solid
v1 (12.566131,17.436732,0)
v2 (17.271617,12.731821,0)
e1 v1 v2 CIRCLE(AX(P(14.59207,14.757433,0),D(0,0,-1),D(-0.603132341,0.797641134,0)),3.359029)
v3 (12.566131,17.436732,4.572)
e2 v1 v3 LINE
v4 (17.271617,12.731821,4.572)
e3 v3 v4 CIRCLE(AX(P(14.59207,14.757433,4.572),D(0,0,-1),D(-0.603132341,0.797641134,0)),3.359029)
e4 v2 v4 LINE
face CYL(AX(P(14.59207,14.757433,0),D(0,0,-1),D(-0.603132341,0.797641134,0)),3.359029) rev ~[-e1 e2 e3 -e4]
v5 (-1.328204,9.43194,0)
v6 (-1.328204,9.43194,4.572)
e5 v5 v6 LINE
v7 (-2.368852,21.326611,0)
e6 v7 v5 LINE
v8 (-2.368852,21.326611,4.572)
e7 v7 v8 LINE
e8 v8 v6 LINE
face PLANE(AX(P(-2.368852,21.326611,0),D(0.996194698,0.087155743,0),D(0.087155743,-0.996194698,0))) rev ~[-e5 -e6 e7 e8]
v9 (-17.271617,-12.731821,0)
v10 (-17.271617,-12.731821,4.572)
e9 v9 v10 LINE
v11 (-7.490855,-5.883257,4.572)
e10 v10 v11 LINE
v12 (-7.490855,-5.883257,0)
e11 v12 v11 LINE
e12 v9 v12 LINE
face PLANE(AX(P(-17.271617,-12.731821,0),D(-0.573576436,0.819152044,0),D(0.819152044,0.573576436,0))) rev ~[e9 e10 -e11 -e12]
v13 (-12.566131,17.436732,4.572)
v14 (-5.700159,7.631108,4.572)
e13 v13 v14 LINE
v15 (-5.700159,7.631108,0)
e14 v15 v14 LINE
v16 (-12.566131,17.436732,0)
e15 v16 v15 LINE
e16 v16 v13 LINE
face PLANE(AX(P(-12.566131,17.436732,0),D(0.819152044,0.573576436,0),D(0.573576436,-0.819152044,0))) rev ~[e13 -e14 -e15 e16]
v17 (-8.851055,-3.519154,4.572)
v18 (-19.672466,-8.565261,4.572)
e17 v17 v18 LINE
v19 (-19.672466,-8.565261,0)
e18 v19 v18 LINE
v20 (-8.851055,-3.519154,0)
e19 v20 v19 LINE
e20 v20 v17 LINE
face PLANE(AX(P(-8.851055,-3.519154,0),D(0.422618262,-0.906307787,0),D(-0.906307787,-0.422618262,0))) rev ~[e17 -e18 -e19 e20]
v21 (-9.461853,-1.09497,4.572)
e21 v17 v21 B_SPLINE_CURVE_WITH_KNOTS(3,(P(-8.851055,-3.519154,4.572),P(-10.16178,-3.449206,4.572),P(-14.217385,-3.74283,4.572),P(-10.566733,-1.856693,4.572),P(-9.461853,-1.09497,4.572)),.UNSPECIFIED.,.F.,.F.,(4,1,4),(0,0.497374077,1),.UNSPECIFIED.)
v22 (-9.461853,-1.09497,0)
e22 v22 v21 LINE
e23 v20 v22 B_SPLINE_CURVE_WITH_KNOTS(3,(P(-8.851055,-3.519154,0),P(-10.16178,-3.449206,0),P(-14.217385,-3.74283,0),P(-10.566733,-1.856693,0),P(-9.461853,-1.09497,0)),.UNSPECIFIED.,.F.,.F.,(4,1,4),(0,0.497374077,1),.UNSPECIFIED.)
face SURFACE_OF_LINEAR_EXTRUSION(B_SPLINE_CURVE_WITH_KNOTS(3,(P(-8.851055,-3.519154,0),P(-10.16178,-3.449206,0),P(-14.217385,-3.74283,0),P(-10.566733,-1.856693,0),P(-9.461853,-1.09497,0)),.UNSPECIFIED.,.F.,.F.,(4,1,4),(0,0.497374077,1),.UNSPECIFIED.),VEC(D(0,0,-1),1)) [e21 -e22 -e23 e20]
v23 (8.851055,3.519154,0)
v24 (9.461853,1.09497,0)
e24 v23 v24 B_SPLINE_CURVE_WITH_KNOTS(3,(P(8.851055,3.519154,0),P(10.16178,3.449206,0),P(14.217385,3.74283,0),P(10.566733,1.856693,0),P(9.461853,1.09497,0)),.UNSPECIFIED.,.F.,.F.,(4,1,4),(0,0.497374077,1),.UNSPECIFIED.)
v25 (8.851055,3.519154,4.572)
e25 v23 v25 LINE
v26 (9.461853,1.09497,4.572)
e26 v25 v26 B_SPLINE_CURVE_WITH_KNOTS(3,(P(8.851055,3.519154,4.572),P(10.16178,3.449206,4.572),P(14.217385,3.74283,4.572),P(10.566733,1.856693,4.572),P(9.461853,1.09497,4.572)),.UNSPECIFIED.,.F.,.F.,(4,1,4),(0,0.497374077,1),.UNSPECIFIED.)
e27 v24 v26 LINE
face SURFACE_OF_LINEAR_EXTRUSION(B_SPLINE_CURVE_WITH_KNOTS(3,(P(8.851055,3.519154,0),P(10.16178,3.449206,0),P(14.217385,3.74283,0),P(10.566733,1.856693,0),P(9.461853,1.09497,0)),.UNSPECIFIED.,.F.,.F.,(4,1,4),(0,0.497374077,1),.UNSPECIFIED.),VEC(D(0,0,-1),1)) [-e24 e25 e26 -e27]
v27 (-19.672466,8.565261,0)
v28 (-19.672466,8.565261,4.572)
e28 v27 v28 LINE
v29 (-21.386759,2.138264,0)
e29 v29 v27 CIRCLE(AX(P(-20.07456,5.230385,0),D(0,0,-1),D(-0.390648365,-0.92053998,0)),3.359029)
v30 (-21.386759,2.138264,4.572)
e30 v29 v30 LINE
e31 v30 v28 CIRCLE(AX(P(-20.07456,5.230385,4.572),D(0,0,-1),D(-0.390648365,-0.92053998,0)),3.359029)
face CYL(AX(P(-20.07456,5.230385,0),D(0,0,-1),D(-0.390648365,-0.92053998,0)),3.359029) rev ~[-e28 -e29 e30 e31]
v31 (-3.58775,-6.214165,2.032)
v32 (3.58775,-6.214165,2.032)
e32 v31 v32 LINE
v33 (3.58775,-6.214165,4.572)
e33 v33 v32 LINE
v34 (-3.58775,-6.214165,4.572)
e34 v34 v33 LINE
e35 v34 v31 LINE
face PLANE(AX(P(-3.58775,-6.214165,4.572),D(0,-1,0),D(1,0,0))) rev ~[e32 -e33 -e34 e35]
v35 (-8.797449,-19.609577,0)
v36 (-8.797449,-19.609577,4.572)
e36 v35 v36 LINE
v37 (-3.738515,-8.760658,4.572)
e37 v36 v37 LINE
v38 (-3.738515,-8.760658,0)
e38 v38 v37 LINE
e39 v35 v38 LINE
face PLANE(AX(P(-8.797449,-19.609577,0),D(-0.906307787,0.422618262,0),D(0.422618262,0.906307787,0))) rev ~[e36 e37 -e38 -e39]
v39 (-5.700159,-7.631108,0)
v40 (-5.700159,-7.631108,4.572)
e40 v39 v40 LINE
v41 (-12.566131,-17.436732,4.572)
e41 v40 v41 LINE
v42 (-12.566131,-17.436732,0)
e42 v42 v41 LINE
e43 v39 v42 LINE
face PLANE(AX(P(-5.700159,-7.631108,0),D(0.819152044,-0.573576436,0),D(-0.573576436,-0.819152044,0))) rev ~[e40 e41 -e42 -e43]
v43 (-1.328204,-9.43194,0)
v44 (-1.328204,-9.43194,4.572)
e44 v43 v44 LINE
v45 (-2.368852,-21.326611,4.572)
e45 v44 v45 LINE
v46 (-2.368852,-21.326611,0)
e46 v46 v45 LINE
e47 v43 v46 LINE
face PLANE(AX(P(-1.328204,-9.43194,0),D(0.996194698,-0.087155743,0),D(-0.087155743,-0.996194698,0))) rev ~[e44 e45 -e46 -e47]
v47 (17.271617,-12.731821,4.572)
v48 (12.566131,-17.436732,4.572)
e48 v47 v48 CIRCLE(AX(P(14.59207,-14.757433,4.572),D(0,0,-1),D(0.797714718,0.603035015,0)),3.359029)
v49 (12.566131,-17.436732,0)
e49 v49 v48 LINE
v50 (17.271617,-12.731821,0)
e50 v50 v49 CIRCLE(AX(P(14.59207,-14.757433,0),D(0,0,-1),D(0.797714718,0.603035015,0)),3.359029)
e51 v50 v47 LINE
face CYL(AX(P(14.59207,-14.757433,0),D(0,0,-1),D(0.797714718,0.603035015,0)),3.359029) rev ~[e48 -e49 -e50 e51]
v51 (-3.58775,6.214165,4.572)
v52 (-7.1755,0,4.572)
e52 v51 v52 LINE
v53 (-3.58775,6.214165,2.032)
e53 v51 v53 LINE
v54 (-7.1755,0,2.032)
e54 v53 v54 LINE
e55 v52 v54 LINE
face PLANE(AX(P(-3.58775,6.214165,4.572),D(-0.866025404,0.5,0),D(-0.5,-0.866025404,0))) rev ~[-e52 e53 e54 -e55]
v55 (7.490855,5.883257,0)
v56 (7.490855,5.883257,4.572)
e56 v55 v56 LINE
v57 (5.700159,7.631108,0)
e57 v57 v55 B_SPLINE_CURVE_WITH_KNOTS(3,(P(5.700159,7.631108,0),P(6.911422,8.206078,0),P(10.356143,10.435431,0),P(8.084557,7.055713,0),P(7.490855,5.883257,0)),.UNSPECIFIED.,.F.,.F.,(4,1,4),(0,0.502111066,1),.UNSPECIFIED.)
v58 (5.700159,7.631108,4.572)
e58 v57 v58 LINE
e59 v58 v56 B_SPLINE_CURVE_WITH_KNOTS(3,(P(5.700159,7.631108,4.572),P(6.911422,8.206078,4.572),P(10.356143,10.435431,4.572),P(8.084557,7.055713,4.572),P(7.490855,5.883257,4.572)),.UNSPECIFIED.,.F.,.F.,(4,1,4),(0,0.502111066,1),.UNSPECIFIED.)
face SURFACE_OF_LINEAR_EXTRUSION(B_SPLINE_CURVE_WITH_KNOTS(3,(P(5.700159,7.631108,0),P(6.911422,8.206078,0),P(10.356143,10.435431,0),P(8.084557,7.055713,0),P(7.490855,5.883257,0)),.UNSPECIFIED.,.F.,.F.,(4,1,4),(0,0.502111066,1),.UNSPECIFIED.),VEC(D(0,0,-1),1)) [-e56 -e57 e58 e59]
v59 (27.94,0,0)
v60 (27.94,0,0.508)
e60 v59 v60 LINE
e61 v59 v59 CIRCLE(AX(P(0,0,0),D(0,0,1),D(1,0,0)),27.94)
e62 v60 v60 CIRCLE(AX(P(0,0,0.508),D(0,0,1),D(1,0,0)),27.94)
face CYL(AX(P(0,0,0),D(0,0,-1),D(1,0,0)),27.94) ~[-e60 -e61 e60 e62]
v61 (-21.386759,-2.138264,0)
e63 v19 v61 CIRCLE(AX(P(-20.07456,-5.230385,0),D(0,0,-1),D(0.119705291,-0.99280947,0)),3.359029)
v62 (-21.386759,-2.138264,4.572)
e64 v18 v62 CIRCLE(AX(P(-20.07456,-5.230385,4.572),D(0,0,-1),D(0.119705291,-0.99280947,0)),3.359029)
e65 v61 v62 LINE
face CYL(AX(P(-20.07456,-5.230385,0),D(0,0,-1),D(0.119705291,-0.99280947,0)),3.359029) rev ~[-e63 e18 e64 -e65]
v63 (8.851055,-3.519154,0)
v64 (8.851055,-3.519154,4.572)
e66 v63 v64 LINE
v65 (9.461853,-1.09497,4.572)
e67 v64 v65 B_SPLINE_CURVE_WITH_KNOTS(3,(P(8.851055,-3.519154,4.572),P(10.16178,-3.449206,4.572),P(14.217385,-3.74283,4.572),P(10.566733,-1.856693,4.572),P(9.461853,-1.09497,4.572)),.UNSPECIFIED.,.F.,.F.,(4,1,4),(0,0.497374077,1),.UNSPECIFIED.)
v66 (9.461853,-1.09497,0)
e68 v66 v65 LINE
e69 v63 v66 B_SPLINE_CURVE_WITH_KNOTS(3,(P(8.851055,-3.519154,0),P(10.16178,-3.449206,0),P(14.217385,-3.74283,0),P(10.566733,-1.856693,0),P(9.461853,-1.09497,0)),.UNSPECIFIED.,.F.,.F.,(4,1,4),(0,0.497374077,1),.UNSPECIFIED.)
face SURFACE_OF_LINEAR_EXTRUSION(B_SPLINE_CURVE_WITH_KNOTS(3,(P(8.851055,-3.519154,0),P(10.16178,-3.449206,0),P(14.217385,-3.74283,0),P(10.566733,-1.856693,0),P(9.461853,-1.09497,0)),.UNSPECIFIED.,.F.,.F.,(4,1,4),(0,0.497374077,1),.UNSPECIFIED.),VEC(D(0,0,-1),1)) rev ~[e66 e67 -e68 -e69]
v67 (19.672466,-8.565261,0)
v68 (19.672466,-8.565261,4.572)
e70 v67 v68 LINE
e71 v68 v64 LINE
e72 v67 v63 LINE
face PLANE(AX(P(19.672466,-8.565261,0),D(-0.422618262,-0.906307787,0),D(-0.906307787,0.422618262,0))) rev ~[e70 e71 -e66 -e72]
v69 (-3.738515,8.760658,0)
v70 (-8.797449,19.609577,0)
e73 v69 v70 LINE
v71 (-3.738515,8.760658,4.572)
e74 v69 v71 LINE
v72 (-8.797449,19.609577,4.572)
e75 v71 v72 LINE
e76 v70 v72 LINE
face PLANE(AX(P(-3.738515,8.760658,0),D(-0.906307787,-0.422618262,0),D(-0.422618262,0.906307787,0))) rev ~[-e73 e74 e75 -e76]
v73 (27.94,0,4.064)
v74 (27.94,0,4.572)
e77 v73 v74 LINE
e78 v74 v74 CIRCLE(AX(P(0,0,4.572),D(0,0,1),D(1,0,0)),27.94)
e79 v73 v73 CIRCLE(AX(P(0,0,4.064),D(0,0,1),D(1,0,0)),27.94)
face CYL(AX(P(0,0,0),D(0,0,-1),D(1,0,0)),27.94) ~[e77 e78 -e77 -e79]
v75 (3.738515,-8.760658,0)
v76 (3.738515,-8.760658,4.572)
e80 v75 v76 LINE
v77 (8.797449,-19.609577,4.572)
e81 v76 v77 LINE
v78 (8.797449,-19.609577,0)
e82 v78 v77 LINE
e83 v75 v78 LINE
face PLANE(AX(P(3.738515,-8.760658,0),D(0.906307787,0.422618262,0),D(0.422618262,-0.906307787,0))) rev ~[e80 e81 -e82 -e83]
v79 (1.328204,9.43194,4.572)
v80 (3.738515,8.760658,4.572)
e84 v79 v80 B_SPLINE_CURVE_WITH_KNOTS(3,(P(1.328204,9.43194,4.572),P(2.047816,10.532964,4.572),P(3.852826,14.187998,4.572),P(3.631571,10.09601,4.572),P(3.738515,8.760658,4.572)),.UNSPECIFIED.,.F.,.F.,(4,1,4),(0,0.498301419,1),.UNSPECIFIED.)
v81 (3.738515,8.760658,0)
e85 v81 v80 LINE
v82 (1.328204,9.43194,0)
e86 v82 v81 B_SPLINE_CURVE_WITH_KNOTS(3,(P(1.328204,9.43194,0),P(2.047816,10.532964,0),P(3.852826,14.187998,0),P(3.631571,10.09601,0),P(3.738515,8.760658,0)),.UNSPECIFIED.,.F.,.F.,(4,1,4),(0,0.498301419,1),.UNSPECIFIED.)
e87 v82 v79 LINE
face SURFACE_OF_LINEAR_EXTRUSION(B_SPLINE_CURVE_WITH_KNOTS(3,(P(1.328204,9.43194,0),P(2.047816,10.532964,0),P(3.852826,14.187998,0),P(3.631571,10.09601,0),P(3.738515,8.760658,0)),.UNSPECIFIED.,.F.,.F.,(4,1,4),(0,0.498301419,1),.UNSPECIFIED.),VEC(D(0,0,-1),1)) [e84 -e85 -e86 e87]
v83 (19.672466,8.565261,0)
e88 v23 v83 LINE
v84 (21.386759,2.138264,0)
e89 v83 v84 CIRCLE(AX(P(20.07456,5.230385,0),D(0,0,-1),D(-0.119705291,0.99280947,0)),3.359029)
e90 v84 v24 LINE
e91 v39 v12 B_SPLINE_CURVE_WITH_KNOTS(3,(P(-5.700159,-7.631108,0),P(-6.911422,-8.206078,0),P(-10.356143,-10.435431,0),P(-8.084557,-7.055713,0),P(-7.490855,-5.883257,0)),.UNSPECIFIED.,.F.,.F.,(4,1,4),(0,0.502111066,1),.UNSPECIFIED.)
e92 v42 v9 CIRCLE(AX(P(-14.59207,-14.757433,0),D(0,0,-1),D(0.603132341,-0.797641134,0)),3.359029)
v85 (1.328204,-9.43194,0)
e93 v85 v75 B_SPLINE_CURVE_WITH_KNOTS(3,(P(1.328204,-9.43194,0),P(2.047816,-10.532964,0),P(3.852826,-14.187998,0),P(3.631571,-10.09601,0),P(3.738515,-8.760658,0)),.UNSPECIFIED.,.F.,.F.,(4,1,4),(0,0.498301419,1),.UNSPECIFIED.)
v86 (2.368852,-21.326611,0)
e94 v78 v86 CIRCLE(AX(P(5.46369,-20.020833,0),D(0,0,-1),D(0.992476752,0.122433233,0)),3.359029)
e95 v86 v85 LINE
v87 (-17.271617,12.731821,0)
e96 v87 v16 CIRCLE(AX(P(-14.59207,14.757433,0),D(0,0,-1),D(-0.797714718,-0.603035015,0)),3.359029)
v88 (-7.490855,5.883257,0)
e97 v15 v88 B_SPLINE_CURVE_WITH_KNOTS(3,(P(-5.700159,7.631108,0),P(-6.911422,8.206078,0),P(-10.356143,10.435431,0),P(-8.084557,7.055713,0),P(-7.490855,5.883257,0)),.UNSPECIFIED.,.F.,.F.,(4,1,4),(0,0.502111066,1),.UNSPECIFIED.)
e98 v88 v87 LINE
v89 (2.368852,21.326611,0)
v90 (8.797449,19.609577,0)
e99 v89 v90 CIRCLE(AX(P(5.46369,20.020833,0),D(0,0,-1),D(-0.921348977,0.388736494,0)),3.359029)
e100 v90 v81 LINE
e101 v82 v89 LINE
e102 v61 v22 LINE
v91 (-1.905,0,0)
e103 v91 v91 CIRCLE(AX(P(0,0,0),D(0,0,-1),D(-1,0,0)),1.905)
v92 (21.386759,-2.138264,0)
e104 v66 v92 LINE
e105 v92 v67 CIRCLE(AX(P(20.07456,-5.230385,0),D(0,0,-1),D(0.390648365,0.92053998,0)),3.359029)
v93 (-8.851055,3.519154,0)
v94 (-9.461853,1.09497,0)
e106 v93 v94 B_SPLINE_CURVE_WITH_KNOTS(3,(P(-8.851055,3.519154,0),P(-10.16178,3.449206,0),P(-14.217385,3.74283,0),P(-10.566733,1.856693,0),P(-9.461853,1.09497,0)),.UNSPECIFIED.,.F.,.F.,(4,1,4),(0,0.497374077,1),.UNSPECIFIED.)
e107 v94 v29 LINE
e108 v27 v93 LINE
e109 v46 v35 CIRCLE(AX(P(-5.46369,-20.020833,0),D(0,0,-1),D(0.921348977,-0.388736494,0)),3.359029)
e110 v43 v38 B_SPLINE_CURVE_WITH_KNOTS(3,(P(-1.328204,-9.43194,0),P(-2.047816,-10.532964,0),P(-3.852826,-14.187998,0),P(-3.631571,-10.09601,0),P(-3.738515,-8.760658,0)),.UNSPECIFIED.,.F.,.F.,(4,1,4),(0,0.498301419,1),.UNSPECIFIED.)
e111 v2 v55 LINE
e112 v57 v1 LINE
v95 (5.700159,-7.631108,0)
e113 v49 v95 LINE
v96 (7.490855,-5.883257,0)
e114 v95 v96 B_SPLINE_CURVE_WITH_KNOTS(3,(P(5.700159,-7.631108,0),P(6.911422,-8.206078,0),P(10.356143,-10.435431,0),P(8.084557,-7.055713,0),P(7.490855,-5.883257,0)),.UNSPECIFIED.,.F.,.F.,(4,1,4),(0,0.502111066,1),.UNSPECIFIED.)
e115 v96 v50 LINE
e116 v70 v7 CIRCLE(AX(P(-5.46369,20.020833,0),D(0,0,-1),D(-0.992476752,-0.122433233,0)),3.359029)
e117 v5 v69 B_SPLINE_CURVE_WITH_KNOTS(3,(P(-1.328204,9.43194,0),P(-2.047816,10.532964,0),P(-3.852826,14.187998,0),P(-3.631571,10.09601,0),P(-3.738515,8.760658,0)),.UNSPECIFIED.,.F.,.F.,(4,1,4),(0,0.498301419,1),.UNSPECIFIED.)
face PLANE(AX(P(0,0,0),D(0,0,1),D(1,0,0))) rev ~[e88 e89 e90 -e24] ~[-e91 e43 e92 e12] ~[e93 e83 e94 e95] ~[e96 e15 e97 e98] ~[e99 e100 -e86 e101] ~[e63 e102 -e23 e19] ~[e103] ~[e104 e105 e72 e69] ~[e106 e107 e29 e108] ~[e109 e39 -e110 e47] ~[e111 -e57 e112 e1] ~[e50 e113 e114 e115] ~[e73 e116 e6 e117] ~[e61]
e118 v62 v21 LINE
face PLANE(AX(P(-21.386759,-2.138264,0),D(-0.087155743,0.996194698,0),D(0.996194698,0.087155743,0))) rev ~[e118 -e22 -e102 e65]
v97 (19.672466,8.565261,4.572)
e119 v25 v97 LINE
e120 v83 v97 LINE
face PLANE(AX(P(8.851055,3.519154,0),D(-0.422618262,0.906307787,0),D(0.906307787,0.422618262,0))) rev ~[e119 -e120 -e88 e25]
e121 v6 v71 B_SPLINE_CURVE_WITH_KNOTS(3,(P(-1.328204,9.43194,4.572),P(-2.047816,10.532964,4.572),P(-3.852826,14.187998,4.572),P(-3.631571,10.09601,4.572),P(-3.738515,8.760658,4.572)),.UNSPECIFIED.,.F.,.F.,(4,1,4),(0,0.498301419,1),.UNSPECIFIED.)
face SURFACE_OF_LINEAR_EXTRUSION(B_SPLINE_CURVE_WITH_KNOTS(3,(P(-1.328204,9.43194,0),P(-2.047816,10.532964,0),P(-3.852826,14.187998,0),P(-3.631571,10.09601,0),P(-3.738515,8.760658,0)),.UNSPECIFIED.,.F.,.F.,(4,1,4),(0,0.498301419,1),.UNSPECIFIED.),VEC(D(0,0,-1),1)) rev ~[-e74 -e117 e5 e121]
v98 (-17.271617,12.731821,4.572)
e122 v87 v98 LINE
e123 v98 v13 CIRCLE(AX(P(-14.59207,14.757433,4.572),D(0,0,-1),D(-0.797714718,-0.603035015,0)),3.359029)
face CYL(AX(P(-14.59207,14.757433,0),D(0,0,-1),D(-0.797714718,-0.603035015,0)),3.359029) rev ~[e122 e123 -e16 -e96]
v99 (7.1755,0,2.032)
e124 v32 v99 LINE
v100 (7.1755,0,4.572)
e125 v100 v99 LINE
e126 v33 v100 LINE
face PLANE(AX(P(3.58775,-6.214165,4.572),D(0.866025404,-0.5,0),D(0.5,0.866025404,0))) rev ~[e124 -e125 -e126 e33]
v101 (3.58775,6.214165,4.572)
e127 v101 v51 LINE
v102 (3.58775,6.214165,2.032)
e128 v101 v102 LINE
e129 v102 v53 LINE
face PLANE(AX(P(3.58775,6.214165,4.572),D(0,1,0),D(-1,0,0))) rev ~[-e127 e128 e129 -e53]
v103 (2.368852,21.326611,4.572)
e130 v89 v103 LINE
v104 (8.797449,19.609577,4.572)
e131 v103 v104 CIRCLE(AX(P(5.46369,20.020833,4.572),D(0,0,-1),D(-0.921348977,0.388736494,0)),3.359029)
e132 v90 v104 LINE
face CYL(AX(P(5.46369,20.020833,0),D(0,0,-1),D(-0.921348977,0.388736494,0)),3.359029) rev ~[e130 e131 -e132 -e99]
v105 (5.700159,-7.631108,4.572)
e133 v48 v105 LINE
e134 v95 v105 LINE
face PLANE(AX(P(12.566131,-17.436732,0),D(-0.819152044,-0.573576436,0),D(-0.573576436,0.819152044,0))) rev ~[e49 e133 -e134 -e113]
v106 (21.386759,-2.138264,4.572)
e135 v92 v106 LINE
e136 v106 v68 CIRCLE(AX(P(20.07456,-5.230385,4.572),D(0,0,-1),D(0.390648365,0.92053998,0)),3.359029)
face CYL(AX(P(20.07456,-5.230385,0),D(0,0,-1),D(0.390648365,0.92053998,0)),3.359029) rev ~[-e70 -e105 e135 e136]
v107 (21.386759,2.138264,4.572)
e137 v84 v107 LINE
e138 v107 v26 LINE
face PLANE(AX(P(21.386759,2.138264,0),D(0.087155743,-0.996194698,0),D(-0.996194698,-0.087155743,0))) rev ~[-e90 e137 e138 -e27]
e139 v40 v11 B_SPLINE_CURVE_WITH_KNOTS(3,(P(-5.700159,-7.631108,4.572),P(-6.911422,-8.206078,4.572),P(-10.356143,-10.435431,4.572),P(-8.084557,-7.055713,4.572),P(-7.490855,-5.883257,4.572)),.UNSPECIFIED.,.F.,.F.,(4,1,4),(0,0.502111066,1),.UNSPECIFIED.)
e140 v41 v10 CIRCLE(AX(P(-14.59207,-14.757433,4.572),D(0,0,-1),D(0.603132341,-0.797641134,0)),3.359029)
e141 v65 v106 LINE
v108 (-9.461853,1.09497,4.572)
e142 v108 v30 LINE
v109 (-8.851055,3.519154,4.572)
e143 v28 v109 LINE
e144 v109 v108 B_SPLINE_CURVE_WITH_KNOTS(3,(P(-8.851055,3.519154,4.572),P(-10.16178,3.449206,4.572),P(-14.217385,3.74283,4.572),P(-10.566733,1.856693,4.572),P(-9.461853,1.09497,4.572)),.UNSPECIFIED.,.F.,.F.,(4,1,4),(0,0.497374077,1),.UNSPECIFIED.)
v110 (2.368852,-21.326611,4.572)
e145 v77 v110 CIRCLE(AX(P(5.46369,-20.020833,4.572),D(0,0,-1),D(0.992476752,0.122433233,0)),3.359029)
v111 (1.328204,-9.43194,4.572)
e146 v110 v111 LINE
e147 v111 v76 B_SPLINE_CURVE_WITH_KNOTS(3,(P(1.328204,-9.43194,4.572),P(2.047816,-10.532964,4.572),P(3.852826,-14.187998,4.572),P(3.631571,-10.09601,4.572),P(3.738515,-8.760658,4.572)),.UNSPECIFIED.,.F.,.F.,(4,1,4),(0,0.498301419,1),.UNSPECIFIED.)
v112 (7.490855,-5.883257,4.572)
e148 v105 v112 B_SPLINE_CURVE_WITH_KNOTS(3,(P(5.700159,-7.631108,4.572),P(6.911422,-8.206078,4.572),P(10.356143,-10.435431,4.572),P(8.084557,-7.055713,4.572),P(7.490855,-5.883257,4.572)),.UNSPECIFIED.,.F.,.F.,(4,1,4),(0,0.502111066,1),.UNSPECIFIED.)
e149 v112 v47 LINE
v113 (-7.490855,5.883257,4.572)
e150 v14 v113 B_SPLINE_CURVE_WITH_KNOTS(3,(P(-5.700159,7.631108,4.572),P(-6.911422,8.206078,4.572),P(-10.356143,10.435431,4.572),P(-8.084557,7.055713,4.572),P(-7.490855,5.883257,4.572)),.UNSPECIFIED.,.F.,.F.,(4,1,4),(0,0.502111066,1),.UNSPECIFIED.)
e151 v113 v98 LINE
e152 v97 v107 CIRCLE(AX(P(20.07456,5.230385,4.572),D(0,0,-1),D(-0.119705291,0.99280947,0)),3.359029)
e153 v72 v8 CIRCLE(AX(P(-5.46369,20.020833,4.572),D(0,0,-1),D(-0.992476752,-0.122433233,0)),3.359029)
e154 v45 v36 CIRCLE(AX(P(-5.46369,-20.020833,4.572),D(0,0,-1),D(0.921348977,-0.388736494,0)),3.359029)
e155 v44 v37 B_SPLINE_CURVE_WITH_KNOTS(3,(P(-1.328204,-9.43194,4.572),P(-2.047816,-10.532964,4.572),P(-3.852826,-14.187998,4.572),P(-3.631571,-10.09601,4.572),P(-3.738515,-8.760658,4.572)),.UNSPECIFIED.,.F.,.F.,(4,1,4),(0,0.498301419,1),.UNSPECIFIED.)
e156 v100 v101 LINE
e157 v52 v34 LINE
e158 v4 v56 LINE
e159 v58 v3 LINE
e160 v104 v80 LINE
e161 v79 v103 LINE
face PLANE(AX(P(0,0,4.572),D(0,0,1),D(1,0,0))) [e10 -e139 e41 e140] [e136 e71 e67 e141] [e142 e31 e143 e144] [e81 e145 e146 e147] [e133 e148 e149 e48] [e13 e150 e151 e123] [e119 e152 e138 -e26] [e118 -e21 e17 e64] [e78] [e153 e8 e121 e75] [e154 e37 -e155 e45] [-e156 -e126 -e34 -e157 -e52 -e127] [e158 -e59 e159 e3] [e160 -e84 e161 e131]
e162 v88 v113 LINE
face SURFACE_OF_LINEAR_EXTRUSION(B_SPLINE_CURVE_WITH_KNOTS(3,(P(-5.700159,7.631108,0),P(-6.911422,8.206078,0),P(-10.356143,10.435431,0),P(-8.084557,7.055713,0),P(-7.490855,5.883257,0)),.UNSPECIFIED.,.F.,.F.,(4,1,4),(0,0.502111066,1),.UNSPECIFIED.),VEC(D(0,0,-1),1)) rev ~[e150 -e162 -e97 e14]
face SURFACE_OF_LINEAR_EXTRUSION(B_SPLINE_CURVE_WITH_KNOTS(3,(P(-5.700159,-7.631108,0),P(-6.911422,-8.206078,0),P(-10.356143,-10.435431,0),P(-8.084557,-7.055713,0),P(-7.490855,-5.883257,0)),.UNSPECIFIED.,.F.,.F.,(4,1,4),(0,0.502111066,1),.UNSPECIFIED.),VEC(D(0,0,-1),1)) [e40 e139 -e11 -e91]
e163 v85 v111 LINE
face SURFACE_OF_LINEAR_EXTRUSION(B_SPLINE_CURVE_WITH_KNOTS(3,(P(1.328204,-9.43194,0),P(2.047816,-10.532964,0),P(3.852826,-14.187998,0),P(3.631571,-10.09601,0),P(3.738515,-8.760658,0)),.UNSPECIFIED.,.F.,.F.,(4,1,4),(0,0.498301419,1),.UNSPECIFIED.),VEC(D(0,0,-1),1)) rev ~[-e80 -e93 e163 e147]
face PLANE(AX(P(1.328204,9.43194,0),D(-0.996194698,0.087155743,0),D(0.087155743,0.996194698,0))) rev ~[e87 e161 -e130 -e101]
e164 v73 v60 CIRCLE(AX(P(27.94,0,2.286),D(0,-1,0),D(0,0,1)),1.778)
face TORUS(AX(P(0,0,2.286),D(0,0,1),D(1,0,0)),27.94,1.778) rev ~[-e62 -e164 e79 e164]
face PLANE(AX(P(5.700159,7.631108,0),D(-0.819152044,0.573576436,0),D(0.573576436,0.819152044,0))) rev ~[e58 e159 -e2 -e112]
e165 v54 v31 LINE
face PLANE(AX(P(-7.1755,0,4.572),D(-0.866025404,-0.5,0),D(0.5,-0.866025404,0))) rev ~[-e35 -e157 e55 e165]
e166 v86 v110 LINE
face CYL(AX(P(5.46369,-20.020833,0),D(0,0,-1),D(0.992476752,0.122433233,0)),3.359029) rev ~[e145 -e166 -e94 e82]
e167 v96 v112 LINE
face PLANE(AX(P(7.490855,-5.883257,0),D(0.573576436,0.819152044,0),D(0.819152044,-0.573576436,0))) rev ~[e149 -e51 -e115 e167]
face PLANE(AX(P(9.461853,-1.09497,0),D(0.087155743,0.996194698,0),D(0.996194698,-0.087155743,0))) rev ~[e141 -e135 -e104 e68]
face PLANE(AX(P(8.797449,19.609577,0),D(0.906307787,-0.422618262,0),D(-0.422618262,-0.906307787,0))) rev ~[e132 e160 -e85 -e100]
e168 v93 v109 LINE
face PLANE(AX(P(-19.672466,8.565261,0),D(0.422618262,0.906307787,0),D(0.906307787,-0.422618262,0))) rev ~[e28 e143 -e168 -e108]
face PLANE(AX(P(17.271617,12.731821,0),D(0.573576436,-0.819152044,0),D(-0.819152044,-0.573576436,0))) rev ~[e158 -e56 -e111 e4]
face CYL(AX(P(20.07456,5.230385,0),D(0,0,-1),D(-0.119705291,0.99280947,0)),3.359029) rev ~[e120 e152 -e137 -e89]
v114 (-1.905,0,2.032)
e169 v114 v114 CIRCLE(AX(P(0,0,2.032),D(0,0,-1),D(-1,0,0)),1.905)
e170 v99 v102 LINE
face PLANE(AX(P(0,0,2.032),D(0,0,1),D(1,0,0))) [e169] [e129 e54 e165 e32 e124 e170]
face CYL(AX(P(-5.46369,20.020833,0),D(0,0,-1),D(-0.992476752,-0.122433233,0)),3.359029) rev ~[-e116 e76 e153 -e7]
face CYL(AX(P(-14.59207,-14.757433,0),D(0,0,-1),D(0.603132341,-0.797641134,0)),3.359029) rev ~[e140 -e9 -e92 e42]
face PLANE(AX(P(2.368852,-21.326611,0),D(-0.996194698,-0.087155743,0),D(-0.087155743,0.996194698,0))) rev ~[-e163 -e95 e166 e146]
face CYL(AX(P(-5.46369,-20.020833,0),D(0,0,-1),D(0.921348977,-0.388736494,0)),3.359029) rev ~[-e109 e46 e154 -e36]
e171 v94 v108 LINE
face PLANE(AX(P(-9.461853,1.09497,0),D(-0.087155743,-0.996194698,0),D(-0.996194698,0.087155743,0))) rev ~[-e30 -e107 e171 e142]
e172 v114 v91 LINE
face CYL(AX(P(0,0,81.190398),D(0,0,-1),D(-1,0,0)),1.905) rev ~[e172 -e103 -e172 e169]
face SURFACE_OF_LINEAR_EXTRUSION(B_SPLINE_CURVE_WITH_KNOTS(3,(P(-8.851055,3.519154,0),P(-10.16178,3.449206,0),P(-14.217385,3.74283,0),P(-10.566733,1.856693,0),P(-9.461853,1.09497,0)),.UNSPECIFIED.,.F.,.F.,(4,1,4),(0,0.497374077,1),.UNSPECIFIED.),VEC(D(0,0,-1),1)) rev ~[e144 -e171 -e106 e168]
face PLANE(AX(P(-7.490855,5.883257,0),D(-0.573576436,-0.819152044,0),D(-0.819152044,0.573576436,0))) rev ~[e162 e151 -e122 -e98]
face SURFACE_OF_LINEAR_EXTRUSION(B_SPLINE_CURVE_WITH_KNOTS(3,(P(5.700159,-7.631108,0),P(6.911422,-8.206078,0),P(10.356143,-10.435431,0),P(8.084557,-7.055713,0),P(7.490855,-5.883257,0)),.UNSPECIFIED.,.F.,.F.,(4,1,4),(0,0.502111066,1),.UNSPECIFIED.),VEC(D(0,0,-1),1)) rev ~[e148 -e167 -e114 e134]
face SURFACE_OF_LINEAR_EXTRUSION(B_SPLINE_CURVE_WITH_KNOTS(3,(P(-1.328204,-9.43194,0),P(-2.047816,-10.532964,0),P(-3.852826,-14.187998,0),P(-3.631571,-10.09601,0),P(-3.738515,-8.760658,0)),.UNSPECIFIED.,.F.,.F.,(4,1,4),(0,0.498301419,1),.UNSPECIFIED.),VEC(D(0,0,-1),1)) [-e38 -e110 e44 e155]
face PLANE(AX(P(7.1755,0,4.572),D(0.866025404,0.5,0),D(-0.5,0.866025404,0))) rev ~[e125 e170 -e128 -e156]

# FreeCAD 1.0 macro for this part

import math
import FreeCAD as App
import Part
import Sketcher
Q = App.Units.Quantity

doc = App.newDocument("Part")
body = doc.addObject("PartDesign::Body", "Body")

# Sketch on XY plane
sketch1 = body.newObject("Sketcher::SketchObject", "Sketch")
sketch1.AttachmentSupport = (doc.getObject("XY_Plane"), [""])
sketch1.MapMode = "FlatFace"
sketch1.addGeometry([
    Part.Circle(App.Vector(0, 0, 0), App.Vector(0, 0, 1), 27.94),  # 0
    Part.BSplineCurve([App.Vector(-5.700159, -7.631108, 0), App.Vector(-6.911422, -8.206078, 0), App.Vector(-10.356143, -10.435431, 0), App.Vector(-8.084557, -7.055713, 0), App.Vector(-7.490855, -5.883257, 0)], [4, 1, 4], [0, 0.502111066, 1], False, 3, [1, 1, 1, 1, 1], False),  # 1
    Part.LineSegment(App.Vector(-5.700159, -7.631108, 0), App.Vector(-12.566131, -17.436732, 0)),  # 2
    Part.ArcOfCircle(Part.Circle(App.Vector(-14.59207, -14.757433, 0), App.Vector(0, 0, 1), 3.359029), math.radians(142.912425), math.radians(307.094566)),  # 3
    Part.LineSegment(App.Vector(-17.271617, -12.731821, 0), App.Vector(-7.490855, -5.883257, 0)),  # 4
    Part.BSplineCurve([App.Vector(-1.328204, -9.43194, 0), App.Vector(-2.047816, -10.532964, 0), App.Vector(-3.852826, -14.187998, 0), App.Vector(-3.631571, -10.09601, 0), App.Vector(-3.738515, -8.760658, 0)], [4, 1, 4], [0, 0.498301419, 1], False, 3, [1, 1, 1, 1, 1], False),  # 5
    Part.LineSegment(App.Vector(-1.328204, -9.43194, 0), App.Vector(-2.368852, -21.326611, 0)),  # 6
    Part.ArcOfCircle(Part.Circle(App.Vector(-5.46369, -20.020833, 0), App.Vector(0, 0, 1), 3.359029), math.radians(172.967448), math.radians(337.124097)),  # 7
    Part.LineSegment(App.Vector(-8.797449, -19.609577, 0), App.Vector(-3.738515, -8.760658, 0)),  # 8
    Part.BSplineCurve([App.Vector(-8.851055, -3.519154, 0), App.Vector(-10.16178, -3.449206, 0), App.Vector(-14.217385, -3.74283, 0), App.Vector(-10.566733, -1.856693, 0), App.Vector(-9.461853, -1.09497, 0)], [4, 1, 4], [0, 0.497374077, 1], False, 3, [1, 1, 1, 1, 1], False),  # 9
    Part.LineSegment(App.Vector(-8.851055, -3.519154, 0), App.Vector(-19.672466, -8.565261, 0)),  # 10
    Part.ArcOfCircle(Part.Circle(App.Vector(-20.07456, -5.230385, 0), App.Vector(0, 0, 1), 3.359029), math.radians(112.994849), math.radians(276.875094)),  # 11
    Part.LineSegment(App.Vector(-21.386759, -2.138264, 0), App.Vector(-9.461853, -1.09497, 0)),  # 12
    Part.LineSegment(App.Vector(3.738515, -8.760658, 0), App.Vector(8.797449, -19.609577, 0)),  # 13
    Part.ArcOfCircle(Part.Circle(App.Vector(5.46369, -20.020833, 0), App.Vector(0, 0, 1), 3.359029), math.radians(-157.124097), math.radians(7.032552)),  # 14
    Part.LineSegment(App.Vector(2.368852, -21.326611, 0), App.Vector(1.328204, -9.43194, 0)),  # 15
    Part.BSplineCurve([App.Vector(1.328204, -9.43194, 0), App.Vector(2.047816, -10.532964, 0), App.Vector(3.852826, -14.187998, 0), App.Vector(3.631571, -10.09601, 0), App.Vector(3.738515, -8.760658, 0)], [4, 1, 4], [0, 0.498301419, 1], False, 3, [1, 1, 1, 1, 1], False),  # 16
    Part.LineSegment(App.Vector(7.490855, -5.883257, 0), App.Vector(17.271617, -12.731821, 0)),  # 17
    Part.ArcOfCircle(Part.Circle(App.Vector(14.59207, -14.757433, 0), App.Vector(0, 0, 1), 3.359029), math.radians(-127.094566), math.radians(37.087575)),  # 18
    Part.LineSegment(App.Vector(12.566131, -17.436732, 0), App.Vector(5.700159, -7.631108, 0)),  # 19
    Part.BSplineCurve([App.Vector(5.700159, -7.631108, 0), App.Vector(6.911422, -8.206078, 0), App.Vector(10.356143, -10.435431, 0), App.Vector(8.084557, -7.055713, 0), App.Vector(7.490855, -5.883257, 0)], [4, 1, 4], [0, 0.502111066, 1], False, 3, [1, 1, 1, 1, 1], False),  # 20
    Part.LineSegment(App.Vector(9.461853, -1.09497, 0), App.Vector(21.386759, -2.138264, 0)),  # 21
    Part.ArcOfCircle(Part.Circle(App.Vector(20.07456, -5.230385, 0), App.Vector(0, 0, 1), 3.359029), math.radians(-96.875094), math.radians(67.005151)),  # 22
    Part.LineSegment(App.Vector(19.672466, -8.565261, 0), App.Vector(8.851055, -3.519154, 0)),  # 23
    Part.BSplineCurve([App.Vector(8.851055, -3.519154, 0), App.Vector(10.16178, -3.449206, 0), App.Vector(14.217385, -3.74283, 0), App.Vector(10.566733, -1.856693, 0), App.Vector(9.461853, -1.09497, 0)], [4, 1, 4], [0, 0.497374077, 1], False, 3, [1, 1, 1, 1, 1], False),  # 24
    Part.LineSegment(App.Vector(-9.461853, 1.09497, 0), App.Vector(-21.386759, 2.138264, 0)),  # 25
    Part.ArcOfCircle(Part.Circle(App.Vector(-20.07456, 5.230385, 0), App.Vector(0, 0, 1), 3.359029), math.radians(83.124906), math.radians(247.005151)),  # 26
    Part.LineSegment(App.Vector(-19.672466, 8.565261, 0), App.Vector(-8.851055, 3.519154, 0)),  # 27
    Part.BSplineCurve([App.Vector(-8.851055, 3.519154, 0), App.Vector(-10.16178, 3.449206, 0), App.Vector(-14.217385, 3.74283, 0), App.Vector(-10.566733, 1.856693, 0), App.Vector(-9.461853, 1.09497, 0)], [4, 1, 4], [0, 0.497374077, 1], False, 3, [1, 1, 1, 1, 1], False),  # 28
    Part.LineSegment(App.Vector(-7.490855, 5.883257, 0), App.Vector(-17.271617, 12.731821, 0)),  # 29
    Part.ArcOfCircle(Part.Circle(App.Vector(-14.59207, 14.757433, 0), App.Vector(0, 0, 1), 3.359029), math.radians(52.905434), math.radians(217.087575)),  # 30
    Part.LineSegment(App.Vector(-12.566131, 17.436732, 0), App.Vector(-5.700159, 7.631108, 0)),  # 31
    Part.BSplineCurve([App.Vector(-5.700159, 7.631108, 0), App.Vector(-6.911422, 8.206078, 0), App.Vector(-10.356143, 10.435431, 0), App.Vector(-8.084557, 7.055713, 0), App.Vector(-7.490855, 5.883257, 0)], [4, 1, 4], [0, 0.502111066, 1], False, 3, [1, 1, 1, 1, 1], False),  # 32
    Part.LineSegment(App.Vector(-3.738515, 8.760658, 0), App.Vector(-8.797449, 19.609577, 0)),  # 33
    Part.ArcOfCircle(Part.Circle(App.Vector(-5.46369, 20.020833, 0), App.Vector(0, 0, 1), 3.359029), math.radians(22.875903), math.radians(187.032552)),  # 34
    Part.LineSegment(App.Vector(-2.368852, 21.326611, 0), App.Vector(-1.328204, 9.43194, 0)),  # 35
    Part.BSplineCurve([App.Vector(-1.328204, 9.43194, 0), App.Vector(-2.047816, 10.532964, 0), App.Vector(-3.852826, 14.187998, 0), App.Vector(-3.631571, 10.09601, 0), App.Vector(-3.738515, 8.760658, 0)], [4, 1, 4], [0, 0.498301419, 1], False, 3, [1, 1, 1, 1, 1], False),  # 36
    Part.BSplineCurve([App.Vector(8.851055, 3.519154, 0), App.Vector(10.16178, 3.449206, 0), App.Vector(14.217385, 3.74283, 0), App.Vector(10.566733, 1.856693, 0), App.Vector(9.461853, 1.09497, 0)], [4, 1, 4], [0, 0.497374077, 1], False, 3, [1, 1, 1, 1, 1], False),  # 37
    Part.LineSegment(App.Vector(8.851055, 3.519154, 0), App.Vector(19.672466, 8.565261, 0)),  # 38
    Part.ArcOfCircle(Part.Circle(App.Vector(20.07456, 5.230385, 0), App.Vector(0, 0, 1), 3.359029), math.radians(-67.005151), math.radians(96.875094)),  # 39
    Part.LineSegment(App.Vector(21.386759, 2.138264, 0), App.Vector(9.461853, 1.09497, 0)),  # 40
    Part.BSplineCurve([App.Vector(1.328204, 9.43194, 0), App.Vector(2.047816, 10.532964, 0), App.Vector(3.852826, 14.187998, 0), App.Vector(3.631571, 10.09601, 0), App.Vector(3.738515, 8.760658, 0)], [4, 1, 4], [0, 0.498301419, 1], False, 3, [1, 1, 1, 1, 1], False),  # 41
    Part.LineSegment(App.Vector(1.328204, 9.43194, 0), App.Vector(2.368852, 21.326611, 0)),  # 42
    Part.ArcOfCircle(Part.Circle(App.Vector(5.46369, 20.020833, 0), App.Vector(0, 0, 1), 3.359029), math.radians(-7.032552), math.radians(157.124097)),  # 43
    Part.LineSegment(App.Vector(8.797449, 19.609577, 0), App.Vector(3.738515, 8.760658, 0)),  # 44
    Part.BSplineCurve([App.Vector(5.700159, 7.631108, 0), App.Vector(6.911422, 8.206078, 0), App.Vector(10.356143, 10.435431, 0), App.Vector(8.084557, 7.055713, 0), App.Vector(7.490855, 5.883257, 0)], [4, 1, 4], [0, 0.502111066, 1], False, 3, [1, 1, 1, 1, 1], False),  # 45
    Part.LineSegment(App.Vector(5.700159, 7.631108, 0), App.Vector(12.566131, 17.436732, 0)),  # 46
    Part.ArcOfCircle(Part.Circle(App.Vector(14.59207, 14.757433, 0), App.Vector(0, 0, 1), 3.359029), math.radians(-37.087575), math.radians(127.094566)),  # 47
    Part.LineSegment(App.Vector(17.271617, 12.731821, 0), App.Vector(7.490855, 5.883257, 0)),  # 48
], False)
sketch1.addConstraint([
    Sketcher.Constraint("Block", 1),
    Sketcher.Constraint("Block", 5),
    Sketcher.Constraint("Block", 9),
    Sketcher.Constraint("Block", 16),
    Sketcher.Constraint("Block", 20),
    Sketcher.Constraint("Block", 24),
    Sketcher.Constraint("Block", 28),
    Sketcher.Constraint("Block", 32),
    Sketcher.Constraint("Block", 36),
    Sketcher.Constraint("Block", 37),
    Sketcher.Constraint("Block", 41),
    Sketcher.Constraint("Block", 45),
    Sketcher.Constraint("Coincident", 1, 1, 2, 1),
    Sketcher.Constraint("Coincident", 2, 2, 3, 2),
    Sketcher.Constraint("Coincident", 3, 1, 4, 1),
    Sketcher.Constraint("Coincident", 4, 2, 1, 2),
    Sketcher.Constraint("Coincident", 5, 1, 6, 1),
    Sketcher.Constraint("Coincident", 6, 2, 7, 2),
    Sketcher.Constraint("Coincident", 7, 1, 8, 1),
    Sketcher.Constraint("Coincident", 8, 2, 5, 2),
    Sketcher.Constraint("Coincident", 9, 1, 10, 1),
    Sketcher.Constraint("Coincident", 10, 2, 11, 2),
    Sketcher.Constraint("Coincident", 11, 1, 12, 1),
    Sketcher.Constraint("Coincident", 12, 2, 9, 2),
    Sketcher.Constraint("Coincident", 13, 2, 14, 2),
    Sketcher.Constraint("Coincident", 14, 1, 15, 1),
    Sketcher.Constraint("Coincident", 15, 2, 16, 1),
    Sketcher.Constraint("Coincident", 16, 2, 13, 1),
    Sketcher.Constraint("Coincident", 17, 2, 18, 2),
    Sketcher.Constraint("Coincident", 18, 1, 19, 1),
    Sketcher.Constraint("Coincident", 19, 2, 20, 1),
    Sketcher.Constraint("Coincident", 20, 2, 17, 1),
    Sketcher.Constraint("Coincident", 21, 2, 22, 2),
    Sketcher.Constraint("Coincident", 22, 1, 23, 1),
    Sketcher.Constraint("Coincident", 23, 2, 24, 1),
    Sketcher.Constraint("Coincident", 24, 2, 21, 1),
    Sketcher.Constraint("Coincident", 25, 2, 26, 2),
    Sketcher.Constraint("Coincident", 26, 1, 27, 1),
    Sketcher.Constraint("Coincident", 27, 2, 28, 1),
    Sketcher.Constraint("Coincident", 28, 2, 25, 1),
    Sketcher.Constraint("Coincident", 29, 2, 30, 2),
    Sketcher.Constraint("Coincident", 30, 1, 31, 1),
    Sketcher.Constraint("Coincident", 31, 2, 32, 1),
    Sketcher.Constraint("Coincident", 32, 2, 29, 1),
    Sketcher.Constraint("Coincident", 33, 2, 34, 2),
    Sketcher.Constraint("Coincident", 34, 1, 35, 1),
    Sketcher.Constraint("Coincident", 35, 2, 36, 1),
    Sketcher.Constraint("Coincident", 36, 2, 33, 1),
    Sketcher.Constraint("Coincident", 37, 1, 38, 1),
    Sketcher.Constraint("Coincident", 38, 2, 39, 2),
    Sketcher.Constraint("Coincident", 39, 1, 40, 1),
    Sketcher.Constraint("Coincident", 40, 2, 37, 2),
    Sketcher.Constraint("Coincident", 41, 1, 42, 1),
    Sketcher.Constraint("Coincident", 42, 2, 43, 2),
    Sketcher.Constraint("Coincident", 43, 1, 44, 1),
    Sketcher.Constraint("Coincident", 44, 2, 41, 2),
    Sketcher.Constraint("Coincident", 45, 1, 46, 1),
    Sketcher.Constraint("Coincident", 46, 2, 47, 2),
    Sketcher.Constraint("Coincident", 47, 1, 48, 1),
    Sketcher.Constraint("Coincident", 48, 2, 45, 2),
    Sketcher.Constraint("Coincident", 0, 3, -1, 1),
    Sketcher.Constraint("Diameter", 0, Q("2.2 in")),
    Sketcher.Constraint("Radius", 3, Q("3.359029 mm")),
    Sketcher.Constraint("Radius", 7, Q("3.359029 mm")),
    Sketcher.Constraint("Radius", 11, Q("3.359029 mm")),
    Sketcher.Constraint("Radius", 14, Q("3.359029 mm")),
    Sketcher.Constraint("Radius", 18, Q("3.359029 mm")),
    Sketcher.Constraint("Radius", 22, Q("3.359029 mm")),
    Sketcher.Constraint("Radius", 26, Q("3.359029 mm")),
    Sketcher.Constraint("Radius", 30, Q("3.359029 mm")),
    Sketcher.Constraint("Radius", 34, Q("3.359029 mm")),
    Sketcher.Constraint("Radius", 39, Q("3.359029 mm")),
    Sketcher.Constraint("Radius", 43, Q("3.359029 mm")),
    Sketcher.Constraint("Radius", 47, Q("3.359029 mm")),
    Sketcher.Constraint("DistanceY", 7, 3, 3, 3, Q("5.263401 mm")),
    Sketcher.Constraint("DistanceY", 14, 3, 3, 3, Q("5.263401 mm")),
    Sketcher.Constraint("DistanceY", 14, 3, 18, 3, Q("5.263401 mm")),
    Sketcher.Constraint("DistanceY", 30, 3, 34, 3, Q("5.263401 mm")),
    Sketcher.Constraint("DistanceY", 30, 3, 43, 3, Q("5.263401 mm")),
    Sketcher.Constraint("DistanceY", 47, 3, 43, 3, Q("5.263401 mm")),
    Sketcher.Constraint("DistanceY", 2, 2, 3, 3, Q("2.6793 mm")),
    Sketcher.Constraint("DistanceX", 11, 1, 11, 3, Q("1.312199 mm")),
    Sketcher.Constraint("DistanceX", 11, 1, 26, 3, Q("1.312199 mm")),
    Sketcher.Constraint("DistanceX", 6, 2, 13, 2, Q("11.166301 mm")),
    Sketcher.Constraint("DistanceX", 7, 1, 14, 1, Q("11.166301 mm")),
    Sketcher.Constraint("DistanceY", 18, 1, 18, 3, Q("2.6793 mm")),
    Sketcher.Constraint("DistanceX", 22, 3, 21, 2, Q("1.312199 mm")),
    Sketcher.Constraint("DistanceX", 39, 3, 21, 2, Q("1.312199 mm")),
    Sketcher.Constraint("DistanceX", 19, 2, 21, 2, Q("15.6866 mm")),
    Sketcher.Constraint("DistanceX", 25, 2, 26, 3, Q("1.312199 mm")),
    Sketcher.Constraint("DistanceY", 30, 3, 30, 1, Q("2.6793 mm")),
    Sketcher.Constraint("DistanceX", 39, 3, 39, 1, Q("1.312199 mm")),
    Sketcher.Constraint("DistanceX", 33, 2, 42, 2, Q("11.166301 mm")),
    Sketcher.Constraint("DistanceX", 34, 1, 43, 1, Q("11.166301 mm")),
    Sketcher.Constraint("DistanceY", 47, 3, 46, 2, Q("2.6793 mm")),
    Sketcher.Constraint("DistanceX", 3, 3, -1, 1, Q("14.59207 mm")),
    Sketcher.Constraint("DistanceX", 7, 3, -1, 1, Q("5.46369 mm")),
    Sketcher.Constraint("DistanceX", 11, 3, -1, 1, Q("20.07456 mm")),
    Sketcher.Constraint("DistanceX", -1, 1, 14, 3, Q("5.46369 mm")),
    Sketcher.Constraint("DistanceX", -1, 1, 18, 3, Q("14.59207 mm")),
    Sketcher.Constraint("DistanceX", 30, 3, -1, 1, Q("14.59207 mm")),
    Sketcher.Constraint("DistanceX", 34, 3, -1, 1, Q("5.46369 mm")),
    Sketcher.Constraint("DistanceX", -1, 1, 43, 3, Q("5.46369 mm")),
    Sketcher.Constraint("DistanceX", -1, 1, 47, 3, Q("14.59207 mm")),
    Sketcher.Constraint("DistanceY", 3, 1, -1, 1, Q("12.731821 mm")),
    Sketcher.Constraint("DistanceY", 6, 2, -1, 1, Q("21.326611 mm")),
    Sketcher.Constraint("DistanceX", 7, 1, -1, 1, Q("8.797449 mm")),
    Sketcher.Constraint("DistanceY", 10, 2, -1, 1, Q("8.565261 mm")),
    Sketcher.Constraint("DistanceX", -1, 1, 13, 2, Q("8.797449 mm")),
    Sketcher.Constraint("DistanceY", 17, 2, -1, 1, Q("12.731821 mm")),
    Sketcher.Constraint("DistanceY", 22, 1, -1, 1, Q("8.565261 mm")),
    Sketcher.Constraint("DistanceY", -1, 1, 26, 1, Q("8.565261 mm")),
    Sketcher.Constraint("DistanceY", -1, 1, 29, 2, Q("12.731821 mm")),
    Sketcher.Constraint("DistanceX", 33, 2, -1, 1, Q("8.797449 mm")),
    Sketcher.Constraint("DistanceY", -1, 1, 34, 1, Q("21.326611 mm")),
    Sketcher.Constraint("DistanceY", -1, 1, 38, 2, Q("8.565261 mm")),
    Sketcher.Constraint("DistanceY", -1, 1, 42, 2, Q("21.326611 mm")),
    Sketcher.Constraint("DistanceY", -1, 1, 47, 1, Q("12.731821 mm")),
    Sketcher.Constraint("DistanceY", 7, 3, 11, 3, Q("14.790449 mm")),
    Sketcher.Constraint("DistanceY", 14, 3, 22, 3, Q("14.790449 mm")),
    Sketcher.Constraint("DistanceY", 11, 3, 26, 3, Q("10.46077 mm")),
    Sketcher.Constraint("DistanceY", 22, 3, 39, 3, Q("10.46077 mm")),
])
pad1 = body.newObject("PartDesign::Pad", "Pad")
pad1.Profile = sketch1
pad1.Length = Q("0.18 in")

# Sketch on XZ plane
sketch2 = body.newObject("Sketcher::SketchObject", "Sketch001")
sketch2.AttachmentSupport = (doc.getObject("XZ_Plane"), [""])
sketch2.MapMode = "FlatFace"
sketch2.addGeometry([
    Part.LineSegment(App.Vector(27.9, 0.5, 0), App.Vector(27.9, 4.1, 0)),
    Part.ArcOfCircle(Part.Circle(App.Vector(27.9, 2.3, 0), App.Vector(0, 0, 1), 1.8), math.radians(90), math.radians(270)),
], False)
sketch2.addConstraint([
    Sketcher.Constraint("Coincident", 0, 1, 1, 2),
    Sketcher.Constraint("Coincident", 1, 1, 0, 2),
    Sketcher.Constraint("Vertical", 0),
    Sketcher.Constraint("Vertical", 1, 3, 0, 1),
    Sketcher.Constraint("Radius", 1, Q("0.07 in")),
    Sketcher.Constraint("DistanceX", -1, 1, 1, 3, Q("1.1 in")),
    Sketcher.Constraint("DistanceY", -1, 1, 1, 3, Q("0.09 in")),
])
groove = body.newObject("PartDesign::Groove", "Groove")
groove.Profile = sketch2
groove.ReferenceAxis = (sketch2, ["V_Axis"])
groove.Angle = 360

# Sketch on XY plane
sketch3 = body.newObject("Sketcher::SketchObject", "Sketch002")
sketch3.AttachmentSupport = (doc.getObject("XY_Plane"), [""])
sketch3.MapMode = "FlatFace"
sketch3.AttachmentOffset = App.Placement(App.Vector(0, 0, 0.18 * 25.4), App.Rotation())
sketch3.addGeometry([
    Part.LineSegment(App.Vector(4, -6, 0), App.Vector(7, 0, 0)),  # 0
    Part.LineSegment(App.Vector(7, 0, 0), App.Vector(4, 6, 0)),  # 1
    Part.LineSegment(App.Vector(4, 6, 0), App.Vector(-4, 6, 0)),  # 2
    Part.LineSegment(App.Vector(-4, 6, 0), App.Vector(-7, 0, 0)),  # 3
    Part.LineSegment(App.Vector(-7, 0, 0), App.Vector(-4, -6, 0)),  # 4
    Part.LineSegment(App.Vector(-4, -6, 0), App.Vector(4, -6, 0)),  # 5
], False)
sketch3.addConstraint([
    Sketcher.Constraint("Coincident", 0, 2, 1, 1),
    Sketcher.Constraint("Coincident", 1, 2, 2, 1),
    Sketcher.Constraint("Coincident", 2, 2, 3, 1),
    Sketcher.Constraint("Coincident", 3, 2, 4, 1),
    Sketcher.Constraint("Coincident", 4, 2, 5, 1),
    Sketcher.Constraint("Coincident", 5, 2, 0, 1),
    Sketcher.Constraint("Horizontal", 2),
    Sketcher.Constraint("Horizontal", 5),
    Sketcher.Constraint("Symmetric", 0, 2, 3, 2, -1, 1),
    Sketcher.Constraint("Symmetric", 1, 2, 4, 2, -1, 1),
    Sketcher.Constraint("PointOnObject", 0, 2, -1),
    Sketcher.Constraint("Parallel", 0, 3),
    Sketcher.Constraint("Vertical", 2, 2, 4, 2),
    Sketcher.Constraint("Angle", 0, Q("60 deg")),
    Sketcher.Constraint("DistanceX", 2, 2, 2, 1, Q("0.2825 in")),
    Sketcher.Constraint("DistanceX", 3, 2, 0, 2, Q("0.565 in")),
])
pocket1 = body.newObject("PartDesign::Pocket", "Pocket")
pocket1.Profile = sketch3
pocket1.Length = Q("0.1 in")

# Sketch on XY plane
sketch4 = body.newObject("Sketcher::SketchObject", "Sketch003")
sketch4.AttachmentSupport = (doc.getObject("XY_Plane"), [""])
sketch4.MapMode = "FlatFace"
sketch4.AttachmentOffset = App.Placement(App.Vector(0, 0, 0.08 * 25.4), App.Rotation())
sketch4.addGeometry(Part.Circle(App.Vector(0, 0, 0), App.Vector(0, 0, 1), 1.9), False)
sketch4.addConstraint([
    Sketcher.Constraint("Coincident", 0, 3, -1, 1),
    Sketcher.Constraint("Diameter", 0, Q("0.15 in")),
])
doc.recompute()
hole = body.newObject("PartDesign::Hole", "Hole")
hole.Profile = sketch4
hole.ThreadType = "None"
hole.Diameter = Q("0.15 in")
hole.DepthType = "ThroughAll"

doc.recompute()
